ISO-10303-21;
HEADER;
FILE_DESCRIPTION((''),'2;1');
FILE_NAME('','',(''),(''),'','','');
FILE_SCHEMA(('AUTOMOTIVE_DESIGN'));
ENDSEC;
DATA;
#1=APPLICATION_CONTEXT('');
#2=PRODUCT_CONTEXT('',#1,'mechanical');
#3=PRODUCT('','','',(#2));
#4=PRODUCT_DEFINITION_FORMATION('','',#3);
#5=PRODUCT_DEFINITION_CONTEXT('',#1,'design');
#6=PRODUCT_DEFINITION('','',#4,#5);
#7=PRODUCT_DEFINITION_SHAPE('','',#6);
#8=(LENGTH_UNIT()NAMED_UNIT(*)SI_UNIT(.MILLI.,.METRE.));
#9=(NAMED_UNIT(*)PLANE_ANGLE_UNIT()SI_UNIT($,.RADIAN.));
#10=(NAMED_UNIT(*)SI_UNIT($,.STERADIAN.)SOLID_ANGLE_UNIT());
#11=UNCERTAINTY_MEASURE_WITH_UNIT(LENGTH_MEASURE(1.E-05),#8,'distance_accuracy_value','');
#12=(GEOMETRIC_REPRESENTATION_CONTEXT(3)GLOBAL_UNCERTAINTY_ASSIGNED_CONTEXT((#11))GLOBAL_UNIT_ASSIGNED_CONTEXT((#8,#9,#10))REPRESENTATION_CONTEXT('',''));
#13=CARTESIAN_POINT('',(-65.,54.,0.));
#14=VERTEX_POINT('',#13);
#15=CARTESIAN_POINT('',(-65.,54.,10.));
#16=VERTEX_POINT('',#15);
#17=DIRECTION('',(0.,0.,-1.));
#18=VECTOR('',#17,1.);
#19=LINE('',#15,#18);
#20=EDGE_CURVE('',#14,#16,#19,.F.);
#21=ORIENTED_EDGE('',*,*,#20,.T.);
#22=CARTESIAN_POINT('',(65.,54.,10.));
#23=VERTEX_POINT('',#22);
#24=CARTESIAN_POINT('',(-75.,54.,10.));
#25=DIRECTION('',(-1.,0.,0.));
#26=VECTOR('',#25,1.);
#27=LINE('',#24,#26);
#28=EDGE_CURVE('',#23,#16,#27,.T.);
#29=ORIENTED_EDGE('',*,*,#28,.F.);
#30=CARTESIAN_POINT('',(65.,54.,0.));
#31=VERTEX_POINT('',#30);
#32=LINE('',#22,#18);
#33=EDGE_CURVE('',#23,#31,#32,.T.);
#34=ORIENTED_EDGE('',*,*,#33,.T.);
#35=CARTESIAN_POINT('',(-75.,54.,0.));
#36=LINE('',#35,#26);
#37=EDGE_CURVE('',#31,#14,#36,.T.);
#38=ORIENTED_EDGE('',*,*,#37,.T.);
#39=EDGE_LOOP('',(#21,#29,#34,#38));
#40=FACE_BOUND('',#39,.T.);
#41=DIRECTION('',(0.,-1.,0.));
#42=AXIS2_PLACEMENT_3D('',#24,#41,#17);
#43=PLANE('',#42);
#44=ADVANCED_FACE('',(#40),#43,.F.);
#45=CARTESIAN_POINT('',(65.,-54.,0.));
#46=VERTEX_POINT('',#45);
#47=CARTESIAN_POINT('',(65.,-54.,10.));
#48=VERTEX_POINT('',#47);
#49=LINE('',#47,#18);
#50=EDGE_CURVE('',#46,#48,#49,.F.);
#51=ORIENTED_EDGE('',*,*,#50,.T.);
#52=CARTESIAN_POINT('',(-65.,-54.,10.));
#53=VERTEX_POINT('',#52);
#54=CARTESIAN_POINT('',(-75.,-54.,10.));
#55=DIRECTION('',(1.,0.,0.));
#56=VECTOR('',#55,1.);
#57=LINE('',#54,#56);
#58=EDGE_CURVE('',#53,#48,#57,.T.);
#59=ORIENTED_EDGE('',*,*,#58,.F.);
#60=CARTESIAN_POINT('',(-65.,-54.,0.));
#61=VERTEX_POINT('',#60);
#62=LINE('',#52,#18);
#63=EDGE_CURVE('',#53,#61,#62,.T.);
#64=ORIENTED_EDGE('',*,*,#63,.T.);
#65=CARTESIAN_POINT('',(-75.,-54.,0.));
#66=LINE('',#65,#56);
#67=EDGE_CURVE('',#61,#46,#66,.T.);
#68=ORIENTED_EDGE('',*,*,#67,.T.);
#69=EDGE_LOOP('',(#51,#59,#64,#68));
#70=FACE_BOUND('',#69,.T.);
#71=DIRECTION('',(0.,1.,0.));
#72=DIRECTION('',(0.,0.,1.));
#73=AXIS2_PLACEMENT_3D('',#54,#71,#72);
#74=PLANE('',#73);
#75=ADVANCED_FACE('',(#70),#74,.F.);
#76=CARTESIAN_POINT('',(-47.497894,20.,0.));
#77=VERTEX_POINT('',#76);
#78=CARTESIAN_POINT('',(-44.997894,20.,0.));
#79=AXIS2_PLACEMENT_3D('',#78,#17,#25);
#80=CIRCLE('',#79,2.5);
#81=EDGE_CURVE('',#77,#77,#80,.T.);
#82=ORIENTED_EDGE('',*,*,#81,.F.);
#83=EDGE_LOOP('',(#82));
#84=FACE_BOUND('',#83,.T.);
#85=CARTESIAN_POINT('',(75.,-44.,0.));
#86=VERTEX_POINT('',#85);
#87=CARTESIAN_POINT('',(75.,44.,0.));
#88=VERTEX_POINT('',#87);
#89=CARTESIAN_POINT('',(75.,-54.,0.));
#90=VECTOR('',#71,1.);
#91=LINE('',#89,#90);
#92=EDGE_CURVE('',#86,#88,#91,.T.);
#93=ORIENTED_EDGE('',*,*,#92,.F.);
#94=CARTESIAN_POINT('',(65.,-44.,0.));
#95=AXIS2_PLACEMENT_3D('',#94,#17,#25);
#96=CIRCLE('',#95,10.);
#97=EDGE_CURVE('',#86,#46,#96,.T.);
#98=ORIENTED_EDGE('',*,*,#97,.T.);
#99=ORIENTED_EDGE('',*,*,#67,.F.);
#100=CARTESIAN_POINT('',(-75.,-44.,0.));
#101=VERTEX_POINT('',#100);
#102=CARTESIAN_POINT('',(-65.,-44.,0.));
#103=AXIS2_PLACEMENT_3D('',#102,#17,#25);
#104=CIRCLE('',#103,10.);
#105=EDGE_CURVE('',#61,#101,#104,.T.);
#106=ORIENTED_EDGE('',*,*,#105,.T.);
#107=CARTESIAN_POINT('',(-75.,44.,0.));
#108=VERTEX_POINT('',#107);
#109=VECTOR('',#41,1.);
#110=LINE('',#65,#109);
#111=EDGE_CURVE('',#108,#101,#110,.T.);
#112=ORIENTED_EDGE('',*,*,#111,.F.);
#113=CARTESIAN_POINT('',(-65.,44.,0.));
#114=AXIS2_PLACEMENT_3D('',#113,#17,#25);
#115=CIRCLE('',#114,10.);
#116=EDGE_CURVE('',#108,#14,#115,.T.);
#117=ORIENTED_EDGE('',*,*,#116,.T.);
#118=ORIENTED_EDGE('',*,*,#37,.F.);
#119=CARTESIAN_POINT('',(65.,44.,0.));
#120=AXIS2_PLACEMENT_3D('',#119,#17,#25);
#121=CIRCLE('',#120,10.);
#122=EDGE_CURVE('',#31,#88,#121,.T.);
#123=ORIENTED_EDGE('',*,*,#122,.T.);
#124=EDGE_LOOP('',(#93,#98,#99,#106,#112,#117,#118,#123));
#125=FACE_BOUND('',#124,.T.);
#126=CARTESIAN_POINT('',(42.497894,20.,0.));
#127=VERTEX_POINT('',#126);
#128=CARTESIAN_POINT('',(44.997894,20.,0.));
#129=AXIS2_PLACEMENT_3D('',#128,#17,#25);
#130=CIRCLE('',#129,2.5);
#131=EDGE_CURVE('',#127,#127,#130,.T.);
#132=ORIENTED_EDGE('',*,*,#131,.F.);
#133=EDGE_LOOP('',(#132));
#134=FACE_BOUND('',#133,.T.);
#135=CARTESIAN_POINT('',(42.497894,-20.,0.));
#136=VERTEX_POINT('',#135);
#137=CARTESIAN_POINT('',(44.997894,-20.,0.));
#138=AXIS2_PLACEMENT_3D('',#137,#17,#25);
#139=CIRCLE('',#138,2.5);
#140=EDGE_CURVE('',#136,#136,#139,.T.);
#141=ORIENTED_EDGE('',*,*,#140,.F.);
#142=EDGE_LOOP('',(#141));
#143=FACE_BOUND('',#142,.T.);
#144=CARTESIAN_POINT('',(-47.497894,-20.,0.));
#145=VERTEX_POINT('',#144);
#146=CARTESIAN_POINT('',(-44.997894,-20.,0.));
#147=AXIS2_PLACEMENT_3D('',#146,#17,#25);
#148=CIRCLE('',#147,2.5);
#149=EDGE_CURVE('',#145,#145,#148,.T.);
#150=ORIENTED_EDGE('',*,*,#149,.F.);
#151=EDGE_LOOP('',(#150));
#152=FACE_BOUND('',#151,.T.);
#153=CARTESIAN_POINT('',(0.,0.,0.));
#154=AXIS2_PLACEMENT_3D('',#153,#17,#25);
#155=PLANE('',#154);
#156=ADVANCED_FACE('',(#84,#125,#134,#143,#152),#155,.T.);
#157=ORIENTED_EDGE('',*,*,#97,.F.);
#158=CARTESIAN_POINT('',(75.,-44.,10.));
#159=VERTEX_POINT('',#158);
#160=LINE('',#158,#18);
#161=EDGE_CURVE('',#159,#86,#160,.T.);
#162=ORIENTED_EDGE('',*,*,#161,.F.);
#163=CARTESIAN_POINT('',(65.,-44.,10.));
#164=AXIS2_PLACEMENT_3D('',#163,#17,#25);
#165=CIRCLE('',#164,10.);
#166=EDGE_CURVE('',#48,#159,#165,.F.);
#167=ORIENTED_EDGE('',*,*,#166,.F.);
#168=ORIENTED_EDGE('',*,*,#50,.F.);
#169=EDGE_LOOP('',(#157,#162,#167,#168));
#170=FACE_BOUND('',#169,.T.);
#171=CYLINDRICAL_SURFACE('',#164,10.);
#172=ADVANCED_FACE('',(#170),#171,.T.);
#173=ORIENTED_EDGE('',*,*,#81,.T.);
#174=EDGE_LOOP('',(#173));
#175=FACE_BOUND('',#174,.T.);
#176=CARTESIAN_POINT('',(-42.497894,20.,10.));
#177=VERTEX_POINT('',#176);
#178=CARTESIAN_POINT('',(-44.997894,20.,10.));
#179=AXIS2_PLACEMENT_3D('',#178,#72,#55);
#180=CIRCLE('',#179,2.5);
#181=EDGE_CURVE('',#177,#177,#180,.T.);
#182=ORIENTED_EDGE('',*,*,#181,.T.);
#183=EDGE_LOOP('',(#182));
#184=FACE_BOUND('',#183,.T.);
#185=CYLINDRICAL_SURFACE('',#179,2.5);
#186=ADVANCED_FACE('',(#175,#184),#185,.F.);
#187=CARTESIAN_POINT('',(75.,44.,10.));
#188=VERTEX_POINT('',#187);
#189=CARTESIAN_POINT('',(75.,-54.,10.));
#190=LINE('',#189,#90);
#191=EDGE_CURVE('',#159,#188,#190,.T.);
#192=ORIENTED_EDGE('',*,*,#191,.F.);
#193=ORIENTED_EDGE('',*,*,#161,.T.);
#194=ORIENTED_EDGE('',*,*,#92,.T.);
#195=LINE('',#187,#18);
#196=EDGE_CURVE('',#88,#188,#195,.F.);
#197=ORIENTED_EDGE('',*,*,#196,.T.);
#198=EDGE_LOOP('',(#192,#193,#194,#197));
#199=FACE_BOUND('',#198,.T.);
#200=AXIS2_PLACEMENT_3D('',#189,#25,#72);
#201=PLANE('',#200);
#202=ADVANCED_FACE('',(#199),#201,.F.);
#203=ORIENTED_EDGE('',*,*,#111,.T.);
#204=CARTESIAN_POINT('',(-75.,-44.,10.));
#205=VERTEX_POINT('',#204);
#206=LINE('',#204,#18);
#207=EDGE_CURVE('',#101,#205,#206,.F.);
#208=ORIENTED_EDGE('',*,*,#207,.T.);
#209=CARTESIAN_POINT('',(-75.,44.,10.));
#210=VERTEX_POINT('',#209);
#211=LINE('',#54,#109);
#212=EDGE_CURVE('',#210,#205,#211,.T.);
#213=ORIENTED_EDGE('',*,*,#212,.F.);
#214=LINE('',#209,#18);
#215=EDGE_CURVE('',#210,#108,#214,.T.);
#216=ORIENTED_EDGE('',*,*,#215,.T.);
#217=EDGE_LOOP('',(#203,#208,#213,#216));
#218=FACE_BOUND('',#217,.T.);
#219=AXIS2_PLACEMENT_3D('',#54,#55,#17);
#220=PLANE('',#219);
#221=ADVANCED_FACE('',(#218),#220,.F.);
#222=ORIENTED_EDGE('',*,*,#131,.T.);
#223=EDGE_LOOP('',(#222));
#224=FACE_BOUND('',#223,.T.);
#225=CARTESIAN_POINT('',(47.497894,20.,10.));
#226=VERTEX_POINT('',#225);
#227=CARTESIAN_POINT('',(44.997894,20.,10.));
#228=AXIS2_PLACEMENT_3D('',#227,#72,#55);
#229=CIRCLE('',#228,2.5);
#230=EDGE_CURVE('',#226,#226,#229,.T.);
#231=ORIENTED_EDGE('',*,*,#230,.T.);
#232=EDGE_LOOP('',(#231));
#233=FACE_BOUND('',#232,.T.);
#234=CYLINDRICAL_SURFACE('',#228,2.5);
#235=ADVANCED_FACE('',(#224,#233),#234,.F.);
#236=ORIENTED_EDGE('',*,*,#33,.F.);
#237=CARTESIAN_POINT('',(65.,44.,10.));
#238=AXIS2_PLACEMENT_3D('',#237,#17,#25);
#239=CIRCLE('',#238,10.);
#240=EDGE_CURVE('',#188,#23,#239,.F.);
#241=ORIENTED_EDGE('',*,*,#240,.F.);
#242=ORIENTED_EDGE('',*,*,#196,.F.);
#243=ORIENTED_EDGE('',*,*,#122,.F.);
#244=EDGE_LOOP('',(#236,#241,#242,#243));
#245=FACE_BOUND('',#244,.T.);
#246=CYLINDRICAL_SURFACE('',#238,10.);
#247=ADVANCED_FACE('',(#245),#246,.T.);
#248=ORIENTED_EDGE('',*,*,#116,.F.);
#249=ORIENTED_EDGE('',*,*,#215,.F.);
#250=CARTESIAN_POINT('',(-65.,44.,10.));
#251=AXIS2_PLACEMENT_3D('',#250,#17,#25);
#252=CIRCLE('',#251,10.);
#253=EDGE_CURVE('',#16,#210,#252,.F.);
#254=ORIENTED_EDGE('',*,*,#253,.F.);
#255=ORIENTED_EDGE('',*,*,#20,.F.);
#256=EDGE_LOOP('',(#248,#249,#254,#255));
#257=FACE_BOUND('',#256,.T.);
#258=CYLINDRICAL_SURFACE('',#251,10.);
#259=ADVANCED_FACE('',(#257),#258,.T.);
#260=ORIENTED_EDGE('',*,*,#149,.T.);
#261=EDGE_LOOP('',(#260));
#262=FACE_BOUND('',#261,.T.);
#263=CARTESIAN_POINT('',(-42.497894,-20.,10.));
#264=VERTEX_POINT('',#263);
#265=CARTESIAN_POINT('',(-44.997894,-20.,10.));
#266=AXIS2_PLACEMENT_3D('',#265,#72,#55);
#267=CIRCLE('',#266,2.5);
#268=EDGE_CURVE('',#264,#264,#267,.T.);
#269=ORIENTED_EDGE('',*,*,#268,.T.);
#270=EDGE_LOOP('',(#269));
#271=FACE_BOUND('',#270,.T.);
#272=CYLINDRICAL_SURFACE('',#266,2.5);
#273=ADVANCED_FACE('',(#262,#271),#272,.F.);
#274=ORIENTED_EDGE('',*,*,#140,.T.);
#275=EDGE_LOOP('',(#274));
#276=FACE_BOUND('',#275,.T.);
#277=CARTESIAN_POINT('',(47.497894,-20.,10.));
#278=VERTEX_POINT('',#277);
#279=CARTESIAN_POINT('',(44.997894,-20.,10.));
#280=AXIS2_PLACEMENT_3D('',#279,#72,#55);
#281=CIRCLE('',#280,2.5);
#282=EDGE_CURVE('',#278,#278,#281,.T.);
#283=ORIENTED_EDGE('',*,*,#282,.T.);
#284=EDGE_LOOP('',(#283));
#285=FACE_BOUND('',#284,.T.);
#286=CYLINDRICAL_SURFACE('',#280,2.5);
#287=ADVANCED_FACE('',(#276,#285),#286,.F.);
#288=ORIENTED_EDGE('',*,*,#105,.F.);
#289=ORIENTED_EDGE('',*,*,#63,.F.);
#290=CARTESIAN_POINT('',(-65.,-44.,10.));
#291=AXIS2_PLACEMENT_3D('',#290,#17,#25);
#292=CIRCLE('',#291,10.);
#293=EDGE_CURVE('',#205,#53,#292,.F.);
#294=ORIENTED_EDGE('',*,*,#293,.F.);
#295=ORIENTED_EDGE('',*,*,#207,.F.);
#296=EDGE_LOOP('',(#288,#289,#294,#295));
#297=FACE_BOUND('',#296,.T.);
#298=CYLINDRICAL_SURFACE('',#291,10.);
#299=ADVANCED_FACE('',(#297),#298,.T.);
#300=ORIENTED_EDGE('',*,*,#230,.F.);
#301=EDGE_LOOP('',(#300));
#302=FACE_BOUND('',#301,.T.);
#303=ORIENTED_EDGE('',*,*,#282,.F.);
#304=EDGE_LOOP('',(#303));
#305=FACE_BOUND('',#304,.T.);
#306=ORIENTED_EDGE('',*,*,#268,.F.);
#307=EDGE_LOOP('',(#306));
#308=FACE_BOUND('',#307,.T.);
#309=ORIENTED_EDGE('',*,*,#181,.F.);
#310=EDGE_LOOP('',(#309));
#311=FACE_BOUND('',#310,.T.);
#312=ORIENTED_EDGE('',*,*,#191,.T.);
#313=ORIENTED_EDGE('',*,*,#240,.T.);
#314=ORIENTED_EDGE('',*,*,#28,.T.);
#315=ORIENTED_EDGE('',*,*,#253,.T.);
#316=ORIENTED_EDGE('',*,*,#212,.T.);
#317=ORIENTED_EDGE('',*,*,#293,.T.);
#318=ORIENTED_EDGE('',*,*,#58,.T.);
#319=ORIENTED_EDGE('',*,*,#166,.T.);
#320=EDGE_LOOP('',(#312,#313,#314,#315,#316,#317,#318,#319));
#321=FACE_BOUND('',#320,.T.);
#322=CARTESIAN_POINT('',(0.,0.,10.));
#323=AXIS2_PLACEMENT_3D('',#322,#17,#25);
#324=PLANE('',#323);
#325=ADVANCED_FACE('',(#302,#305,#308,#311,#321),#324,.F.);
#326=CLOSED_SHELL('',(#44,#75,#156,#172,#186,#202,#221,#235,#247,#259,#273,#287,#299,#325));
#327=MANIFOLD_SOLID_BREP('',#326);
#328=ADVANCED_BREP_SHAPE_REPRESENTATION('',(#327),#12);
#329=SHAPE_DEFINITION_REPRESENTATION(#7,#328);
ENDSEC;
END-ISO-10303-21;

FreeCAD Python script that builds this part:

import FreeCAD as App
import Part
import Sketcher
Q = App.Units.Quantity


def edges_at(feature, points):
    """Names of the edges that pass closest to the given points."""
    edges = feature.Shape.Edges
    near = lambda p: min(range(len(edges)), key=lambda i: edges[i].distToShape(Part.Vertex(*p))[0])
    return sorted({f"Edge{near(p) + 1}" for p in points})


def add_polygon(sketch, points):
    """Adds a closed chain of lines whose ends are joined by coincident constraints."""
    first, n = sketch.GeometryCount, len(points)
    for a, b in zip(points, points[1:] + points[:1]):
        sketch.addGeometry(Part.LineSegment(App.Vector(*a, 0), App.Vector(*b, 0)), False)
    for i in range(n):
        sketch.addConstraint(Sketcher.Constraint("Coincident", first + i, 2, first + (i + 1) % n, 1))

doc = App.newDocument("Part")
body = doc.addObject("PartDesign::Body", "Body")

# Sketch on XY plane
sketch1 = doc.addObject("Sketcher::SketchObject", "Sketch")
body.addObject(sketch1)
sketch1.AttachmentSupport = (doc.XY_Plane, [""])
sketch1.MapMode = "FlatFace"
add_polygon(sketch1, [(-75, 54), (-75, -54), (75, -54), (75, 54)])  # lines 0-3
sketch1.addConstraint(Sketcher.Constraint("Vertical", 0))
sketch1.addConstraint(Sketcher.Constraint("Horizontal", 1))
sketch1.addConstraint(Sketcher.Constraint("Vertical", 2))
sketch1.addConstraint(Sketcher.Constraint("Horizontal", 3))
sketch1.addConstraint(Sketcher.Constraint("Symmetric", 0, 2, 2, 2, -1, 1))
sketch1.addConstraint(Sketcher.Constraint("DistanceX", 1, 1, 1, 2, Q("150 mm")))
sketch1.addConstraint(Sketcher.Constraint("DistanceY", 0, 2, 0, 1, Q("108 mm")))
pad1 = doc.addObject("PartDesign::Pad", "Pad")
body.addObject(pad1)
pad1.Profile = sketch1
pad1.Length = 10

# Sketch on YZ plane
sketch2 = doc.addObject("Sketcher::SketchObject", "Sketch001")
body.addObject(sketch2)
sketch2.AttachmentSupport = (doc.YZ_Plane, [""])
sketch2.MapMode = "FlatFace"
sketch2.AttachmentOffset = App.Placement(App.Vector(0, 0, -44.997894), App.Rotation())
add_polygon(sketch2, [(20, -6.502152), (20, 10), (17.5, 10), (17.5, -5)])  # lines 0-3
sketch2.addGeometry(Part.LineSegment(App.Vector(20, 10, 0), App.Vector(20, -6.502152, 0)), True)  # axis
sketch2.addConstraint(Sketcher.Constraint("Vertical", 0))
sketch2.addConstraint(Sketcher.Constraint("Horizontal", 1))
sketch2.addConstraint(Sketcher.Constraint("Vertical", 2))
sketch2.addConstraint(Sketcher.Constraint("Vertical", 4))
sketch2.addConstraint(Sketcher.Constraint("Coincident", 4, 1, 0, 2))
sketch2.addConstraint(Sketcher.Constraint("Equal", 0, 4))
sketch2.addConstraint(Sketcher.Constraint("DistanceY", 2, 2, 2, 1, Q("15 mm")))
sketch2.addConstraint(Sketcher.Constraint("Angle", 3, Q("-31 deg")))
sketch2.addConstraint(Sketcher.Constraint("DistanceX", 1, 2, 1, 1, Q("2.5 mm")))
sketch2.addConstraint(Sketcher.Constraint("DistanceX", -1, 1, 0, 2, Q("20 mm")))
sketch2.addConstraint(Sketcher.Constraint("DistanceY", -1, 1, 0, 2, Q("10 mm")))
groove = doc.addObject("PartDesign::Groove", "Groove")
body.addObject(groove)
groove.Profile = sketch2
groove.ReferenceAxis = (sketch2, ["Axis0"])
groove.Angle = 360
doc.recompute()

linearpattern = doc.addObject("PartDesign::LinearPattern", "LinearPattern")
body.addObject(linearpattern)
linearpattern.Originals = [groove]
linearpattern.Direction = (doc.Y_Axis, [""])
linearpattern.Mode = "offset"
linearpattern.Offset = 40
linearpattern.Occurrences = 2
linearpattern.Reversed = True
body.Tip = linearpattern
doc.recompute()

mirrored = doc.addObject("PartDesign::Mirrored", "Mirrored")
body.addObject(mirrored)
mirrored.Originals = [groove]
mirrored.MirrorPlane = (doc.YZ_Plane, [""])
body.Tip = mirrored

# Sketch on YZ plane
sketch3 = doc.addObject("Sketcher::SketchObject", "Sketch002")
body.addObject(sketch3)
sketch3.AttachmentSupport = (doc.YZ_Plane, [""])
sketch3.MapMode = "FlatFace"
sketch3.AttachmentOffset = App.Placement(App.Vector(0, 0, 44.997894), App.Rotation())
add_polygon(sketch3, [(-20, 10), (-20, -6.502152), (-22.5, -5), (-22.5, 10)])  # lines 0-3
sketch3.addGeometry(Part.LineSegment(App.Vector(-20, -6.502152, 0), App.Vector(-20, 10, 0)), True)  # axis
sketch3.addConstraint(Sketcher.Constraint("Vertical", 0))
sketch3.addConstraint(Sketcher.Constraint("Vertical", 2))
sketch3.addConstraint(Sketcher.Constraint("Horizontal", 3))
sketch3.addConstraint(Sketcher.Constraint("Vertical", 4))
sketch3.addConstraint(Sketcher.Constraint("Coincident", 4, 1, 0, 2))
sketch3.addConstraint(Sketcher.Constraint("Horizontal", 2, 2, 4, 2))
sketch3.addConstraint(Sketcher.Constraint("DistanceY", 2, 1, 2, 2, Q("15 mm")))
sketch3.addConstraint(Sketcher.Constraint("Angle", 1, Q("149 deg")))
sketch3.addConstraint(Sketcher.Constraint("DistanceX", 3, 1, 3, 2, Q("2.5 mm")))
sketch3.addConstraint(Sketcher.Constraint("DistanceX", 0, 2, -1, 1, Q("20 mm")))
sketch3.addConstraint(Sketcher.Constraint("DistanceY", 1, 2, -1, 1, Q("5 mm")))
groove2 = doc.addObject("PartDesign::Groove", "Groove001")
body.addObject(groove2)
groove2.Profile = sketch3
groove2.ReferenceAxis = (sketch3, ["Axis0"])
groove2.Angle = 360
doc.recompute()

fillet = doc.addObject("PartDesign::Fillet", "Fillet")
body.addObject(fillet)
fillet.Base = (groove2, edges_at(groove2, [
    (75, -54, 5),
    (-75, -54, 5),
    (-75, 54, 5),
    (75, 54, 5),
]))
fillet.Radius = 10

doc.recompute()
